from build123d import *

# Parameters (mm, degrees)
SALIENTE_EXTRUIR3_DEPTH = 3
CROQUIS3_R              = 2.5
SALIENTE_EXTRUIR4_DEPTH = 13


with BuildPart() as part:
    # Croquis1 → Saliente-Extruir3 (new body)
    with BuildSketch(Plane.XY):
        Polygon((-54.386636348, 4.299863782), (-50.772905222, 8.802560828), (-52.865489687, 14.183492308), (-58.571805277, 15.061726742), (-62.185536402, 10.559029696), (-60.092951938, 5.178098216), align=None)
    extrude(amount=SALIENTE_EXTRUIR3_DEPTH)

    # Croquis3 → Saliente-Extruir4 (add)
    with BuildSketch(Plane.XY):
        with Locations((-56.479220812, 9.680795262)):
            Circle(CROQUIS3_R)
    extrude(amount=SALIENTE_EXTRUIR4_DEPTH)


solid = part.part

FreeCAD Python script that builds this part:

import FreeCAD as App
import Part
import Sketcher

V = App.Vector


def add_polygon(sketch, points):
    """Adds a closed chain of lines whose ends are joined by coincident constraints."""
    first, n = sketch.GeometryCount, len(points)
    for a, b in zip(points, points[1:] + points[:1]):
        sketch.addGeometry(Part.LineSegment(App.Vector(*a, 0), App.Vector(*b, 0)), False)
    for i in range(n):
        sketch.addConstraint(Sketcher.Constraint("Coincident", first + i, 2, first + (i + 1) % n, 1))

doc = App.newDocument("Part")
params = doc.addObject("Spreadsheet::Sheet", "Params")
for row, (alias, value) in enumerate([
    ("pad1_length", "3 mm"),
    ("sketch2_diameter", "5 mm"),
    ("pad2_length", "13 mm"),
], start=1):
    params.set(f"A{row}", alias)
    params.set(f"B{row}", "=" + value)
    params.setAlias(f"B{row}", alias)

body = doc.addObject("PartDesign::Body", "Body")

# Sketch on XY plane
sketch1 = doc.addObject("Sketcher::SketchObject", "Sketch")
body.addObject(sketch1)
sketch1.AttachmentSupport = (doc.XY_Plane, [""])
sketch1.MapMode = "FlatFace"
add_polygon(sketch1, [(-54, 4), (-51, 9), (-53, 14), (-59, 15), (-62, 11), (-60, 5)])  # lines 0-5
sketch1.addConstraint([
    Sketcher.Constraint("Parallel", 0, 3),
    Sketcher.Constraint("Parallel", 1, 4),
    Sketcher.Constraint("Parallel", 2, 5),
    Sketcher.Constraint("Equal", 0, 1),
    Sketcher.Constraint("Equal", 1, 2),
    Sketcher.Constraint("Equal", 2, 3),
    Sketcher.Constraint("DistanceY", -1, 1, 4, 2, 5.178098),
    Sketcher.Constraint("DistanceX", 2, 2, 0, 2, 7.7989),
    Sketcher.Constraint("DistanceY", -1, 1, 0, 2, 8.802561),
    Sketcher.Constraint("DistanceX", 1, 2, -1, 1, 52.86549),
    Sketcher.Constraint("DistanceY", -1, 1, 3, 2, 10.55903),
    Sketcher.Constraint("DistanceX", 4, 2, -1, 1, 60.092952),
])
pad1 = doc.addObject("PartDesign::Pad", "Pad")
body.addObject(pad1)
pad1.Profile = sketch1
pad1.setExpression("Length", "Params.pad1_length")

# Sketch on XY plane
sketch2 = doc.addObject("Sketcher::SketchObject", "Sketch001")
body.addObject(sketch2)
sketch2.AttachmentSupport = (doc.XY_Plane, [""])
sketch2.MapMode = "FlatFace"
sketch2.addGeometry(Part.Circle(V(-56.5, 9.7, 0), V(0, 0, 1), 2.5), False)
sketch2.addConstraint([
    Sketcher.Constraint("Diameter", 0, 5.0),
    Sketcher.Constraint("DistanceX", 0, 3, -1, 1, 56.479221),
    Sketcher.Constraint("DistanceY", -1, 1, 0, 3, 9.680795),
])
sketch2.setExpression("Constraints[0]", "Params.sketch2_diameter")
pad2 = doc.addObject("PartDesign::Pad", "Pad001")
body.addObject(pad2)
pad2.Profile = sketch2
pad2.setExpression("Length", "Params.pad2_length")

doc.recompute()
